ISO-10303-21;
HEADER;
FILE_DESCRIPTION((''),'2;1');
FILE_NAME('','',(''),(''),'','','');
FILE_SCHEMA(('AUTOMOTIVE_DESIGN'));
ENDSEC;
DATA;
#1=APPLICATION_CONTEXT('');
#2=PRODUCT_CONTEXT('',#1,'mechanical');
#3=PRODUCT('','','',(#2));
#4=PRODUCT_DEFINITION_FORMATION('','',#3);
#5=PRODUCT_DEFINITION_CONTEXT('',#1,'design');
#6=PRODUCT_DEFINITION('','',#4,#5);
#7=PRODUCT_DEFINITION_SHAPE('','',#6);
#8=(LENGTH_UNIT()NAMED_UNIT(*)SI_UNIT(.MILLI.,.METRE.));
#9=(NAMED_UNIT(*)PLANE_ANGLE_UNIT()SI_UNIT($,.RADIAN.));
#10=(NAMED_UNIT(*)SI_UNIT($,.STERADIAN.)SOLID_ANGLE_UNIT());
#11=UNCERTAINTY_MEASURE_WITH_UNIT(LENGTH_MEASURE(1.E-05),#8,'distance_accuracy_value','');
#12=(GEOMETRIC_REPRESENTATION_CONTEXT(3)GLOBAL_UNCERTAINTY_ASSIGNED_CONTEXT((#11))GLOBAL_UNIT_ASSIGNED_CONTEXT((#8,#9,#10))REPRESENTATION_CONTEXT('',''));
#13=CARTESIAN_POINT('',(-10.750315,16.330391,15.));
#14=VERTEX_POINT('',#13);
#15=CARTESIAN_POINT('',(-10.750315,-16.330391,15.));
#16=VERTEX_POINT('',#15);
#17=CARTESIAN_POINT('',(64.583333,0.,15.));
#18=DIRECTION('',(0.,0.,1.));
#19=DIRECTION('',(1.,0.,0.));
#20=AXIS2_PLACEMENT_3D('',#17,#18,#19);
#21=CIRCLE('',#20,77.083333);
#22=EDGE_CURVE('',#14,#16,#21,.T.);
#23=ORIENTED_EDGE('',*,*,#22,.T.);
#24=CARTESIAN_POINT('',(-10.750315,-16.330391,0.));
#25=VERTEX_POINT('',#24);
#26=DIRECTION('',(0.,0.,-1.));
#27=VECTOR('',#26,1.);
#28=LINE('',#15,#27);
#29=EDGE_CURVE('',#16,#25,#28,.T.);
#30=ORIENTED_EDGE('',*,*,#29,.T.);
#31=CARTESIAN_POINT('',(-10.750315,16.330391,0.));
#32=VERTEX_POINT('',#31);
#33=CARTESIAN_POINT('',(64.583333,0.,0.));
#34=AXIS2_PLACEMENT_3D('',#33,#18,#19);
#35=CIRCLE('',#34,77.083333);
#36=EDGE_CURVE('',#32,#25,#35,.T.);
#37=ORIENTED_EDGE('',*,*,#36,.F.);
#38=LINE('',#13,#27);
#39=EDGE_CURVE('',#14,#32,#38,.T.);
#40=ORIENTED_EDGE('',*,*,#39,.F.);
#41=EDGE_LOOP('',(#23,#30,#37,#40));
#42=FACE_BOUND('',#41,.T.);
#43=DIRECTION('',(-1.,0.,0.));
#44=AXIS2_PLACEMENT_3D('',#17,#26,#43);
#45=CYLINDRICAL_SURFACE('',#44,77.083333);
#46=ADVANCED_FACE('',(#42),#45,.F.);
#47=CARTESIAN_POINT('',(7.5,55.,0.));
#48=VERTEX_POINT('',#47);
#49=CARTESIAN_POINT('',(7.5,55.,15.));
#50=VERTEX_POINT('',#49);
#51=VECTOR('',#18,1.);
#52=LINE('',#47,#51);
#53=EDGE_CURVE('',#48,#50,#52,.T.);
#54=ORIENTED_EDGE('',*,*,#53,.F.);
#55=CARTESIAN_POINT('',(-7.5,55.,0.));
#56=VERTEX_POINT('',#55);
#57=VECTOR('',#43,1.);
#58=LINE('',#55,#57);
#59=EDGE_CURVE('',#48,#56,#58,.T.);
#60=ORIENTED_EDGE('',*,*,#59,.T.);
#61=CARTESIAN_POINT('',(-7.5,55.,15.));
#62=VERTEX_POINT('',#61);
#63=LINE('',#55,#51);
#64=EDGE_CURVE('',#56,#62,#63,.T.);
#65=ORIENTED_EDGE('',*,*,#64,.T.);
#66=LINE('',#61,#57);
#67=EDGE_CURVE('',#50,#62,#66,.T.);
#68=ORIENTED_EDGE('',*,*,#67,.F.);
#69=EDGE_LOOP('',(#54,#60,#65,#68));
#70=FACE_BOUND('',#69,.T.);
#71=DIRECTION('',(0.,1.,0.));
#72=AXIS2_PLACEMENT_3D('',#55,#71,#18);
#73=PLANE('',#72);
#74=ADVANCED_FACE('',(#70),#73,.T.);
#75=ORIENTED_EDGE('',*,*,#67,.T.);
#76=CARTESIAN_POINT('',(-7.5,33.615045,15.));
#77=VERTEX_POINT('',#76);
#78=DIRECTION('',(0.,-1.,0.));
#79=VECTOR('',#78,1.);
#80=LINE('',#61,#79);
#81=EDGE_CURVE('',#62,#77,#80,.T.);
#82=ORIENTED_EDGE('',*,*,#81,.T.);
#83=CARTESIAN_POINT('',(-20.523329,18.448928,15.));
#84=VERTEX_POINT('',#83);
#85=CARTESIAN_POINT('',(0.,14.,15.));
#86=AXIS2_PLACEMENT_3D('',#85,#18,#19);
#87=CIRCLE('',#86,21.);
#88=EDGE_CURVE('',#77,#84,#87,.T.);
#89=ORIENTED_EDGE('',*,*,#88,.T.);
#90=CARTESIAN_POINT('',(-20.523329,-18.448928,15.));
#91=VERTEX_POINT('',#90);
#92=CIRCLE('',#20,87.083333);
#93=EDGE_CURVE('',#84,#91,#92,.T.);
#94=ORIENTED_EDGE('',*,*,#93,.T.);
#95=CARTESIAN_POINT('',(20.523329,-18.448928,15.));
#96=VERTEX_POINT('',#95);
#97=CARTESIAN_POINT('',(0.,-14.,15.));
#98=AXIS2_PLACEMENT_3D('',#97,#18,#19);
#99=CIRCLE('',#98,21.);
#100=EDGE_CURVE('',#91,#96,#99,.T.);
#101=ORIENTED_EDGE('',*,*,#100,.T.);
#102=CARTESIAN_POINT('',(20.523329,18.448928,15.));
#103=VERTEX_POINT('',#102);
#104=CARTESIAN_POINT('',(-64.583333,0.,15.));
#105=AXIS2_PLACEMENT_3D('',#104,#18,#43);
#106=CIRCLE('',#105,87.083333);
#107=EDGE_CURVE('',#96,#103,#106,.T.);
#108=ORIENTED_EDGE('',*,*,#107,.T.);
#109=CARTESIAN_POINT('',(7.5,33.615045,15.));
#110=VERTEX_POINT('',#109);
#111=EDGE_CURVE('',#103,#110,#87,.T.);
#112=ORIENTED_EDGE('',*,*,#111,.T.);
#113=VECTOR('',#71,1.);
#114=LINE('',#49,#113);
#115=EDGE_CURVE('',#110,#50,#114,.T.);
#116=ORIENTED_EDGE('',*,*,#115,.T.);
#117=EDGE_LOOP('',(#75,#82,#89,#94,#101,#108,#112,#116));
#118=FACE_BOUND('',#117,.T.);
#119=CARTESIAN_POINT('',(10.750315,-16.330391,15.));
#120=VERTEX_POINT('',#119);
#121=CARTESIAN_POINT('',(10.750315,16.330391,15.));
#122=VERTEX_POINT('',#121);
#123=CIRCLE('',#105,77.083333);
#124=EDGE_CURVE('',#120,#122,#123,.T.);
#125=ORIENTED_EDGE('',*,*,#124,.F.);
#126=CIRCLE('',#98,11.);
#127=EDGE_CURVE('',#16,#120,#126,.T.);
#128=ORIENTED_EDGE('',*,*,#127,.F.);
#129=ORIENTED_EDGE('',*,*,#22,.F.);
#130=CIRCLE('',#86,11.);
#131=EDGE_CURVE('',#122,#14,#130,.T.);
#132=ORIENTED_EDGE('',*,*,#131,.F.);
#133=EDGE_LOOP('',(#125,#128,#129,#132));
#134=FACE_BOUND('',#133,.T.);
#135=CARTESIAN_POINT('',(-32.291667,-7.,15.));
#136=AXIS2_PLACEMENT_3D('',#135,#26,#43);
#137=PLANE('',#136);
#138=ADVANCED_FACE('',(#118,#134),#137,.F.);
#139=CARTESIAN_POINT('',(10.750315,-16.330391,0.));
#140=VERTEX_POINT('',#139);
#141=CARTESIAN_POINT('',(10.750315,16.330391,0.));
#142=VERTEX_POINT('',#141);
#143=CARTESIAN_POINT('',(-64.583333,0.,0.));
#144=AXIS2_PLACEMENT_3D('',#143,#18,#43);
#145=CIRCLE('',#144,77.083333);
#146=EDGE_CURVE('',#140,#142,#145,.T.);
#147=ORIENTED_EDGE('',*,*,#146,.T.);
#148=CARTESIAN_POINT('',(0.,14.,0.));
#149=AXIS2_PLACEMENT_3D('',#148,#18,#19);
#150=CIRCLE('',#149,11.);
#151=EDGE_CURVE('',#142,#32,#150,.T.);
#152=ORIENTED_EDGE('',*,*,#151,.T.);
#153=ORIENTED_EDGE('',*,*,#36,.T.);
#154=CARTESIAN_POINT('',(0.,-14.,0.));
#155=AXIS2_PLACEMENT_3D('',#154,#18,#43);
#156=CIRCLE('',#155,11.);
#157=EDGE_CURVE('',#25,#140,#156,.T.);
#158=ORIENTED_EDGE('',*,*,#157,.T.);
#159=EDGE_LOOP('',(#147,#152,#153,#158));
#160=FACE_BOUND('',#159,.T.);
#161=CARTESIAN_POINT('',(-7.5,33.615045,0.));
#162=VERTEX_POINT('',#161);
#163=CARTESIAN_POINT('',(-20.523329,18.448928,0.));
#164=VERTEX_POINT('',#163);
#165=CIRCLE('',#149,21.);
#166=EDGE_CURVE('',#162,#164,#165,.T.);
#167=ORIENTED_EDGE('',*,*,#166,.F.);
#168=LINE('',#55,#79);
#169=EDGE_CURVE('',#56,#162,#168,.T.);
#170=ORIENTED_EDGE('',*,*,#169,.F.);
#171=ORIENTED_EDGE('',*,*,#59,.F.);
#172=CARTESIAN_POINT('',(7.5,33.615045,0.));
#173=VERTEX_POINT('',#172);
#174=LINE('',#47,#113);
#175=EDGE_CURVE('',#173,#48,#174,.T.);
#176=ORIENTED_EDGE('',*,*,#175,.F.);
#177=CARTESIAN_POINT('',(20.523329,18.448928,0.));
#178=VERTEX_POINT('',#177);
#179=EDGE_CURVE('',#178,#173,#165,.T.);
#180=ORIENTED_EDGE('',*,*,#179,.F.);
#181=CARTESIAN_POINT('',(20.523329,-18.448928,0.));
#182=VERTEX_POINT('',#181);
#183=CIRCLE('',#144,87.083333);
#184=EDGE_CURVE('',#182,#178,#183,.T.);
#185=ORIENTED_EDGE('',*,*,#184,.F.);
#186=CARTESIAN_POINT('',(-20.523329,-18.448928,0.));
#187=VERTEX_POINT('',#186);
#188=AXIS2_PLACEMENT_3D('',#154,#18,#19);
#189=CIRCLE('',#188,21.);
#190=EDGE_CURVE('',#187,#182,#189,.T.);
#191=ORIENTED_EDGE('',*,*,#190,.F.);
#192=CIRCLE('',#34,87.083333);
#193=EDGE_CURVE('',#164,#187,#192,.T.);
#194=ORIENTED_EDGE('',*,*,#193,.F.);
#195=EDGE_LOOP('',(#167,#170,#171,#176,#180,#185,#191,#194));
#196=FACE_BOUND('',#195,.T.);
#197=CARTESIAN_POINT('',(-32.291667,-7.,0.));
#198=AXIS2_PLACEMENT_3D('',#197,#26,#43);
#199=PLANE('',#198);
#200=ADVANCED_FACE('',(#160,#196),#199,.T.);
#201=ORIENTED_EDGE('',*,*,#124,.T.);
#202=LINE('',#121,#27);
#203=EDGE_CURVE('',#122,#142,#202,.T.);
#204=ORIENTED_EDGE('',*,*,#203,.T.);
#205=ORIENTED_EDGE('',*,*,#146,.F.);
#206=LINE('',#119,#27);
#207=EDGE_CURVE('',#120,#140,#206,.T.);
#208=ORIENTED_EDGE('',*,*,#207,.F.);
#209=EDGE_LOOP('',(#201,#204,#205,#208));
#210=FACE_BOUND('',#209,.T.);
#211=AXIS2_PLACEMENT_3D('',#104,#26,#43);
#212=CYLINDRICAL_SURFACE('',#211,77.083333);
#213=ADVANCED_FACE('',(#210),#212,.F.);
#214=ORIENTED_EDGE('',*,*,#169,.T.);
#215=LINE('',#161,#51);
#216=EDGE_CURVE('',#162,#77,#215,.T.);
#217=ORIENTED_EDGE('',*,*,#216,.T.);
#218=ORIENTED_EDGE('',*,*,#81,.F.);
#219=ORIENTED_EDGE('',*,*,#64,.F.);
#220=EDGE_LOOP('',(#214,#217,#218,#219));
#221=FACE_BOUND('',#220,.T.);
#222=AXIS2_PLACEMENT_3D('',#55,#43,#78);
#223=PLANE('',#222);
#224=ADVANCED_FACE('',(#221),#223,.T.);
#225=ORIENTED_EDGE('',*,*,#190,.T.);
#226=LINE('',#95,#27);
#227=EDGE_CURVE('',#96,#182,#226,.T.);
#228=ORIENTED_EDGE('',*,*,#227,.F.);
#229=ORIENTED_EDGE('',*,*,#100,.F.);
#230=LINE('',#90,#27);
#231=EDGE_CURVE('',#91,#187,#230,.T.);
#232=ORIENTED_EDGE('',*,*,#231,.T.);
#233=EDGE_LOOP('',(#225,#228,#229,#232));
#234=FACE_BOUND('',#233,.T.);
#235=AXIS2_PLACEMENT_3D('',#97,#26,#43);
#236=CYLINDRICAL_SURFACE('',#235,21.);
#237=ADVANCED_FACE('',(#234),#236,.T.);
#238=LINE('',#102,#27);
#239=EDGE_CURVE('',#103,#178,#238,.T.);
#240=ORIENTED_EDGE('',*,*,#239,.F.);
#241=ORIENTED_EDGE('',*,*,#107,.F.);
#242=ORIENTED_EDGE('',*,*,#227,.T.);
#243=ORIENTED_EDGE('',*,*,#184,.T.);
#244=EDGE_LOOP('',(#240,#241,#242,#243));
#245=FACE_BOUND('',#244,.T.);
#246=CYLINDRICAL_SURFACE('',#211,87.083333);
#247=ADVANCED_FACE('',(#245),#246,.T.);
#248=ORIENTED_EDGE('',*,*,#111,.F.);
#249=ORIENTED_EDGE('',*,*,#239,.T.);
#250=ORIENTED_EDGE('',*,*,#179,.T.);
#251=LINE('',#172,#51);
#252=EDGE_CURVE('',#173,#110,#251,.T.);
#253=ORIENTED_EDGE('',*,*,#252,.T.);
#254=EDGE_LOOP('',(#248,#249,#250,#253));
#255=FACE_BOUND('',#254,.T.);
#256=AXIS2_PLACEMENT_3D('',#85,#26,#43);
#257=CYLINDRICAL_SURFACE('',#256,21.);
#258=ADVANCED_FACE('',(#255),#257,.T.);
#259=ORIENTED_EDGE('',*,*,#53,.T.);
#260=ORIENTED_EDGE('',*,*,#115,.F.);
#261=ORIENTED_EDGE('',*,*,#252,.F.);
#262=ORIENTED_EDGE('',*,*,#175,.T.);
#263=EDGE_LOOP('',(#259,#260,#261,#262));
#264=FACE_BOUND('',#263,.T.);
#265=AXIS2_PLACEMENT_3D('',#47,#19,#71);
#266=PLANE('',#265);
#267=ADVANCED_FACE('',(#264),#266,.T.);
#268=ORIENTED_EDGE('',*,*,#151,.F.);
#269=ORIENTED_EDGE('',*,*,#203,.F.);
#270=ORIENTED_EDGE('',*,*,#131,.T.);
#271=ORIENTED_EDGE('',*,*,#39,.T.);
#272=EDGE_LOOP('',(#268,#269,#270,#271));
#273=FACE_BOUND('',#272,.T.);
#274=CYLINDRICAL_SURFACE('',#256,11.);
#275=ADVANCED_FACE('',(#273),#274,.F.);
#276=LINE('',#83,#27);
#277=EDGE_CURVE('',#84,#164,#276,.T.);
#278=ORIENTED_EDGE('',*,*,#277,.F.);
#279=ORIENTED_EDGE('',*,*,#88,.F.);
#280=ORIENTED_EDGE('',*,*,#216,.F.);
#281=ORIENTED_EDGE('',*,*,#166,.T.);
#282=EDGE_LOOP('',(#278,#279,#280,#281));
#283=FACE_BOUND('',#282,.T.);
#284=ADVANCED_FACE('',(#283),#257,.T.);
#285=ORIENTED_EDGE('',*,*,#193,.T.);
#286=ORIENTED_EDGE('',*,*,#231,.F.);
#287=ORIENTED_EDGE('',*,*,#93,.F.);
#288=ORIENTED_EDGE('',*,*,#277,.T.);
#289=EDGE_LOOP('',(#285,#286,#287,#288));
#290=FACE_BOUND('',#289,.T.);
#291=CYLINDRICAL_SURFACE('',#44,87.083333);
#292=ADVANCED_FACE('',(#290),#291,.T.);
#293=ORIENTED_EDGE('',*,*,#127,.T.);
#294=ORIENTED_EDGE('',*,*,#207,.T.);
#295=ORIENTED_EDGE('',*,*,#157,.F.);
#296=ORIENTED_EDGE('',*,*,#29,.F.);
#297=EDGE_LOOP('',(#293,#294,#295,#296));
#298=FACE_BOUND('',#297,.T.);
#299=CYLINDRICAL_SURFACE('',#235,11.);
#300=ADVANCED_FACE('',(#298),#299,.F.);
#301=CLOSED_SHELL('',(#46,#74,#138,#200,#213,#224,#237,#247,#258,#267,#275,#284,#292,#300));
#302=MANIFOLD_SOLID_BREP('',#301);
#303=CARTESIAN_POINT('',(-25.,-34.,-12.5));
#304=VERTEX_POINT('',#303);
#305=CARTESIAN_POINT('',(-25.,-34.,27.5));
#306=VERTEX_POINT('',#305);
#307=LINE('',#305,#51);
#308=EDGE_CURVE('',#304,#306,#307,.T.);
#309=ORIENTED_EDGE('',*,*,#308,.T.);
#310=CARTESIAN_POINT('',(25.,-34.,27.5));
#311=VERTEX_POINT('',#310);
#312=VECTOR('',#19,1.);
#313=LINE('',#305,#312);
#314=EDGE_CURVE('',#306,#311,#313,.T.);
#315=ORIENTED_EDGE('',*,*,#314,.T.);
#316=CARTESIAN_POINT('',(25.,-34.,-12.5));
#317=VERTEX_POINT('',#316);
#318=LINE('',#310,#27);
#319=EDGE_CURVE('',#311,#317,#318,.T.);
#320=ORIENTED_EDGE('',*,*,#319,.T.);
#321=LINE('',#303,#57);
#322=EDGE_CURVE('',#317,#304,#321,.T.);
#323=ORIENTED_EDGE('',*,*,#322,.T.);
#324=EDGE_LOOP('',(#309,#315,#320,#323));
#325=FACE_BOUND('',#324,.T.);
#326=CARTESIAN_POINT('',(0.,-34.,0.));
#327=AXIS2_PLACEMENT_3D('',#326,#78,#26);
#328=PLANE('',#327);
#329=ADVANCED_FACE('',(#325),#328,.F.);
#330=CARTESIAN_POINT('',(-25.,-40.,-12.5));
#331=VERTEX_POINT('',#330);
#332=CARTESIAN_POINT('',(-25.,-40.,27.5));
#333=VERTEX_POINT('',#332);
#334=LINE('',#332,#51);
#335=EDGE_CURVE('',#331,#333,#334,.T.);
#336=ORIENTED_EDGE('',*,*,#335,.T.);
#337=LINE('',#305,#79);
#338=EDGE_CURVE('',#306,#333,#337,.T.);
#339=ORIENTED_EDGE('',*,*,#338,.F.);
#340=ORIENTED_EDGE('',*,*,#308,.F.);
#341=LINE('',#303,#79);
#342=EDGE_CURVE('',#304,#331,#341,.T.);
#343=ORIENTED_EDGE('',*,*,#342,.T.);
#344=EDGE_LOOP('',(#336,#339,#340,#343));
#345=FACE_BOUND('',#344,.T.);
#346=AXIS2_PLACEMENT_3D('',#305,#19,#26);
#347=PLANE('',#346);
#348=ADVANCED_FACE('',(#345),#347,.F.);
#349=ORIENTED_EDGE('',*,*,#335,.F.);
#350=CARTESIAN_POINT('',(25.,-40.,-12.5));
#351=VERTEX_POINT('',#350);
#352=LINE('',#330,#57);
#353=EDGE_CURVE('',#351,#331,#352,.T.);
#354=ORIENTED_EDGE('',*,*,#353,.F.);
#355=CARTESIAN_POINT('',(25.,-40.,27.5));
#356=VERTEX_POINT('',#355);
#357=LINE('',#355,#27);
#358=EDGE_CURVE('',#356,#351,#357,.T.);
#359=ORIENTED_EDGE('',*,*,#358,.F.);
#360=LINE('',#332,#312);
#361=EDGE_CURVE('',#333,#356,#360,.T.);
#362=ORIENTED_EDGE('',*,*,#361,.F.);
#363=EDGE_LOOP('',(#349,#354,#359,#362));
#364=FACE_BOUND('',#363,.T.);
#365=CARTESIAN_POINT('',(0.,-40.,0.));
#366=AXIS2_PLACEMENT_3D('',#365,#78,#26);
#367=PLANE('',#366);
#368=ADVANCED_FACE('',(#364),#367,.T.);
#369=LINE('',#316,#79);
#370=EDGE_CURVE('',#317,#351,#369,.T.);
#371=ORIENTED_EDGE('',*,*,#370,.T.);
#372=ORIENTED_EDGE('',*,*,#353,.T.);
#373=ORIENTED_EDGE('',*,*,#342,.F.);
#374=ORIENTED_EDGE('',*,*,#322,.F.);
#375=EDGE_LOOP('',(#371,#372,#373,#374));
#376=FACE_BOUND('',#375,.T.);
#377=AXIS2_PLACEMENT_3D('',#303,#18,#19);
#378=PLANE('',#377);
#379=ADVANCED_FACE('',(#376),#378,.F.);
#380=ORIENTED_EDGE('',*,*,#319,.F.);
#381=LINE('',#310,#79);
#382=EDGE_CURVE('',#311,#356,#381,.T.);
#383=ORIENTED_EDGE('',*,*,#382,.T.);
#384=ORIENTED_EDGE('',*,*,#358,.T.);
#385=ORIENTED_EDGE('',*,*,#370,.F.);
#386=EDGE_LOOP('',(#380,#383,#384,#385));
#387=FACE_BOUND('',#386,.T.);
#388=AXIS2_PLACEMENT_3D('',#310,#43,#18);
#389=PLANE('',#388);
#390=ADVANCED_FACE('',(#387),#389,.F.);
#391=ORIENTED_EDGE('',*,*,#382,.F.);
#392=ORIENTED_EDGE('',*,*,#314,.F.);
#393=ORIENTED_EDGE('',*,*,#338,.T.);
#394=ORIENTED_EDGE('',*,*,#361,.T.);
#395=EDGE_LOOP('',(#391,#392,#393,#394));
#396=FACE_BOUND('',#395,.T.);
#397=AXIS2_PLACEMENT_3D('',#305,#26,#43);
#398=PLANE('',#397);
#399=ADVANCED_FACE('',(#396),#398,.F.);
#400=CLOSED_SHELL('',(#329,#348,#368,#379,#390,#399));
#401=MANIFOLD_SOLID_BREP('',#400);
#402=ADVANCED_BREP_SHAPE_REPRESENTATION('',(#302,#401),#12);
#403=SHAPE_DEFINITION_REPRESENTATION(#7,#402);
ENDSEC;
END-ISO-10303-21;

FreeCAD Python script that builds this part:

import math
import FreeCAD as App
import Part
import Sketcher

V = App.Vector
Q = App.Units.Quantity

doc = App.newDocument("Part")
body = doc.addObject("PartDesign::Body", "Body")

sketch1 = body.newObject("Sketcher::SketchObject", "Sketch")
sketch1.AttachmentSupport = (doc.getObject("XY_Plane"), [""])
sketch1.MapMode = "FlatFace"
sketch1.addGeometry([
    Part.ArcOfCircle(Part.Circle(V(0, 14, 0), V(0, 0, 1), 21), math.radians(12), math.radians(168)),
    Part.ArcOfCircle(Part.Circle(V(65, 0, 0), V(0, 0, 1), 87), math.radians(168), math.radians(192)),
    Part.ArcOfCircle(Part.Circle(V(0, -14, 0), V(0, 0, 1), 21), math.radians(-168), math.radians(-12)),
    Part.ArcOfCircle(Part.Circle(V(-65, 0, 0), V(0, 0, 1), 87), math.radians(-12), math.radians(12)),
    Part.ArcOfCircle(Part.Circle(V(0, 14, 0), V(0, 0, 1), 11), math.radians(12), math.radians(168)),
    Part.ArcOfCircle(Part.Circle(V(-65, 0, 0), V(0, 0, 1), 77), math.radians(-12), math.radians(12)),
    Part.ArcOfCircle(Part.Circle(V(0, -14, 0), V(0, 0, 1), 11), math.radians(-90), math.radians(-12)),
    Part.ArcOfCircle(Part.Circle(V(0, -14, 0), V(0, 0, 1), 11), math.radians(-168), math.radians(-90)),
    Part.ArcOfCircle(Part.Circle(V(65, 0, 0), V(0, 0, 1), 77), math.radians(168), math.radians(192)),
], False)
sketch1.addConstraint([
    Sketcher.Constraint("Tangent", 0, 2, 1, 1),
    Sketcher.Constraint("Tangent", 1, 2, 2, 1),
    Sketcher.Constraint("Tangent", 2, 2, 3, 1),
    Sketcher.Constraint("Tangent", 3, 2, 0, 1),
    Sketcher.Constraint("Tangent", 4, 1, 5, 2),
    Sketcher.Constraint("Tangent", 5, 1, 6, 2),
    Sketcher.Constraint("Tangent", 6, 1, 7, 2),
    Sketcher.Constraint("Tangent", 7, 1, 8, 2),
    Sketcher.Constraint("Tangent", 8, 1, 4, 2),
    Sketcher.Constraint("Coincident", 4, 3, 0, 3),
    Sketcher.Constraint("Coincident", 5, 3, 3, 3),
    Sketcher.Constraint("Coincident", 6, 3, 2, 3),
    Sketcher.Constraint("Coincident", 8, 3, 1, 3),
    Sketcher.Constraint("Equal", 0, 2),
    Sketcher.Constraint("Equal", 1, 3),
    Sketcher.Constraint("Symmetric", 0, 3, 2, 3, -1, 1),
    Sketcher.Constraint("PointOnObject", 0, 3, -2),
    Sketcher.Constraint("PointOnObject", 6, 1, -2),
    Sketcher.Constraint("Radius", 0, Q("21 mm")),
    Sketcher.Constraint("Radius", 4, Q("11 mm")),
    Sketcher.Constraint("DistanceY", -1, 1, 0, 3, Q("14 mm")),
    Sketcher.Constraint("Radius", 1, Q("87.083333 mm")),
])
pad1 = body.newObject("PartDesign::Pad", "Pad")
pad1.Profile = sketch1
pad1.Length = 15

sketch2 = body.newObject("Sketcher::SketchObject", "Sketch001")
sketch2.AttachmentSupport = (doc.getObject("XY_Plane"), [""])
sketch2.MapMode = "FlatFace"
sketch2.AttachmentOffset = App.Placement(V(0, 0, 15), App.Rotation())
sketch2.addGeometry([
    Part.LineSegment(V(-8, 55, 0), V(-8, 34, 0)),
    Part.LineSegment(V(-8, 34, 0), V(8, 34, 0)),
    Part.LineSegment(V(8, 34, 0), V(8, 55, 0)),
    Part.LineSegment(V(8, 55, 0), V(-8, 55, 0)),
], False)
sketch2.addConstraint([
    Sketcher.Constraint("Coincident", 0, 2, 1, 1),
    Sketcher.Constraint("Coincident", 1, 2, 2, 1),
    Sketcher.Constraint("Coincident", 2, 2, 3, 1),
    Sketcher.Constraint("Coincident", 3, 2, 0, 1),
    Sketcher.Constraint("Vertical", 0),
    Sketcher.Constraint("Horizontal", 1),
    Sketcher.Constraint("Vertical", 2),
    Sketcher.Constraint("Horizontal", 3),
    Sketcher.Constraint("DistanceX", 1, 1, 1, 2, Q("15 mm")),
    Sketcher.Constraint("DistanceY", -1, 1, 2, 2, Q("55 mm")),
    Sketcher.Constraint("DistanceX", 0, 2, -1, 1, Q("7.5 mm")),
    Sketcher.Constraint("DistanceY", 0, 2, 0, 1, Q("21.384955 mm")),
])
pad2 = body.newObject("PartDesign::Pad", "Pad001")
pad2.Profile = sketch2
pad2.Length = 15
pad2.Reversed = True
body2 = doc.addObject("PartDesign::Body", "Body001")

sketch3 = body2.newObject("Sketcher::SketchObject", "Sketch002")
sketch3.AttachmentSupport = (doc.getObject("XZ_Plane001"), [""])
sketch3.MapMode = "FlatFace"
sketch3.AttachmentOffset = App.Placement(V(0, 0, 35), App.Rotation())
sketch3.addGeometry([
    Part.LineSegment(V(-25, -12, 0), V(-25, 28, 0)),
    Part.LineSegment(V(-25, 28, 0), V(25, 28, 0)),
    Part.LineSegment(V(25, 28, 0), V(25, -12, 0)),
    Part.LineSegment(V(25, -12, 0), V(-25, -12, 0)),
], False)
sketch3.addConstraint([
    Sketcher.Constraint("Coincident", 0, 2, 1, 1),
    Sketcher.Constraint("Coincident", 1, 2, 2, 1),
    Sketcher.Constraint("Coincident", 2, 2, 3, 1),
    Sketcher.Constraint("Coincident", 3, 2, 0, 1),
    Sketcher.Constraint("Vertical", 0),
    Sketcher.Constraint("Horizontal", 1),
    Sketcher.Constraint("Vertical", 2),
    Sketcher.Constraint("Horizontal", 3),
    Sketcher.Constraint("DistanceX", 1, 1, 1, 2, Q("50 mm")),
    Sketcher.Constraint("DistanceY", 0, 1, 0, 2, Q("40 mm")),
    Sketcher.Constraint("DistanceX", 0, 2, -1, 1, Q("25 mm")),
    Sketcher.Constraint("DistanceY", -1, 1, 0, 2, Q("27.5 mm")),
])
pad3 = body2.newObject("PartDesign::Pad", "Pad002")
pad3.Profile = sketch3
pad3.Type = "TwoLengths"
pad3.Length = 1
pad3.Length2 = 5
pad3.Reversed = True

doc.recompute()
